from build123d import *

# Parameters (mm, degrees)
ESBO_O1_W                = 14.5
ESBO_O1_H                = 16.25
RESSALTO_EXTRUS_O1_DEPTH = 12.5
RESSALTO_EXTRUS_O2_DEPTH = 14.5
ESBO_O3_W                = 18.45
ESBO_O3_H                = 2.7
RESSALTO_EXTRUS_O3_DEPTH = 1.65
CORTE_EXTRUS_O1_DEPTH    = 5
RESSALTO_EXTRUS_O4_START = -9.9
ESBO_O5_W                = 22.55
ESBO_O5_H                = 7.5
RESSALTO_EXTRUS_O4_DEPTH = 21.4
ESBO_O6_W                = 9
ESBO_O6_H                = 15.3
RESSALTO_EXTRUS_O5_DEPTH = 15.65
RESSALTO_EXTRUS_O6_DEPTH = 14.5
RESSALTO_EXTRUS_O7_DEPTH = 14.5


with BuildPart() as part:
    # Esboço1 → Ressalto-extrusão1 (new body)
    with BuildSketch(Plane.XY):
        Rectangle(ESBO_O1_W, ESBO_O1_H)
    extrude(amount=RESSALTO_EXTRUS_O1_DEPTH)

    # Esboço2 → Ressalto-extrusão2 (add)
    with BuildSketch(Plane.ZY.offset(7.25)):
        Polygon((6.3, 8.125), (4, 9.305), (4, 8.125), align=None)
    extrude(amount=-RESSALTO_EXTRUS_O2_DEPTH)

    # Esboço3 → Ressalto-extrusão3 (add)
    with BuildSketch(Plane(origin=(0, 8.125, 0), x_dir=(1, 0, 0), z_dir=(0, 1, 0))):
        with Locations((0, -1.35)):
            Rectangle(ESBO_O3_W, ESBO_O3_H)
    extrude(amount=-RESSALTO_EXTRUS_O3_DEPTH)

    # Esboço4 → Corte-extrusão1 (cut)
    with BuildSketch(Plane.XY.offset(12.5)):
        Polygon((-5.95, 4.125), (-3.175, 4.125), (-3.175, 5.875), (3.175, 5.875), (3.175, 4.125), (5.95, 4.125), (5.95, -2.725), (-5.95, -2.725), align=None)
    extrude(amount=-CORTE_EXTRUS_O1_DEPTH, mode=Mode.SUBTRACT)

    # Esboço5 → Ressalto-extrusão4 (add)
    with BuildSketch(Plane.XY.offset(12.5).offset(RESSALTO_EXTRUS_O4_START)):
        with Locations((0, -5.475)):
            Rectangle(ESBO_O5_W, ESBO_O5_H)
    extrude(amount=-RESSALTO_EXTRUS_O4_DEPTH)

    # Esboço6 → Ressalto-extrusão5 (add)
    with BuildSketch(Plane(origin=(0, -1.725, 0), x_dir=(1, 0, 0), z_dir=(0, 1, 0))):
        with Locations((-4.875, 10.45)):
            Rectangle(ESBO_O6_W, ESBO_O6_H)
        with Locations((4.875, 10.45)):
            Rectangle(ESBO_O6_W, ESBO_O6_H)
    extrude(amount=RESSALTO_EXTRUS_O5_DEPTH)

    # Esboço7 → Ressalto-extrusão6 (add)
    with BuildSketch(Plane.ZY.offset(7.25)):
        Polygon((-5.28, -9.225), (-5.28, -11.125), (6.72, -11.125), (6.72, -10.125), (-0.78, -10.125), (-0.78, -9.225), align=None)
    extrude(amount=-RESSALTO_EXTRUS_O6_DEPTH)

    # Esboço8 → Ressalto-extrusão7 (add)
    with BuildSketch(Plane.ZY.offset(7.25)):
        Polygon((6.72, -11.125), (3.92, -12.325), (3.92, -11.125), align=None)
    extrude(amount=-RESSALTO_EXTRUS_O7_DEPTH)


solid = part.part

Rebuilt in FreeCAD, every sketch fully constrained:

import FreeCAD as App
import Part
import Sketcher

V = App.Vector

doc = App.newDocument("Part")
params = doc.addObject("Spreadsheet::Sheet", "Params")
for row, (alias, value) in enumerate([
    ("sketch1_width", "14.5 mm"),
    ("sketch1_height", "16.25 mm"),
    ("pad1_length", "12.5 mm"),
    ("sketch2_height", "2.3 mm"),
    ("sketch2_width", "1.18 mm"),
    ("pad2_length", "14.5 mm"),
    ("sketch3_height", "2.7 mm"),
    ("sketch3_width", "18.45 mm"),
    ("pad3_length", "1.65 mm"),
    ("sketch4_width", "11.9 mm"),
    ("sketch4_width2", "6.35 mm"),
    ("sketch4_height", "6.85 mm"),
    ("sketch4_height2", "1.75 mm"),
    ("pocket1_length", "5 mm"),
    ("sketch5_height", "7.5 mm"),
    ("sketch5_width", "22.55 mm"),
    ("pad4_length", "21.4 mm"),
    ("sketch6_width", "9 mm"),
    ("sketch6_height", "15.3 mm"),
    ("pad5_length", "15.65 mm"),
    ("sketch7_width", "1 mm"),
    ("sketch7_height", "12 mm"),
    ("sketch7_width2", "1.9 mm"),
    ("sketch7_height2", "7.5 mm"),
    ("pad6_length", "14.5 mm"),
    ("sketch8_width", "1.2 mm"),
    ("sketch8_height", "2.8 mm"),
    ("pad7_length", "14.5 mm"),
], start=1):
    params.set(f"A{row}", alias)
    params.set(f"B{row}", "=" + value)
    params.setAlias(f"B{row}", alias)

body = doc.addObject("PartDesign::Body", "Body")

# Sketch on XY plane
sketch1 = body.newObject("Sketcher::SketchObject", "Sketch")
sketch1.AttachmentSupport = (doc.getObject("XY_Plane"), [""])
sketch1.MapMode = "FlatFace"
sketch1.addGeometry(Part.LineSegment(V(-7.25, 8.125, 0), V(-7.25, -8.125, 0)), False)
sketch1.addGeometry(Part.LineSegment(V(-7.25, -8.125, 0), V(7.25, -8.125, 0)), False)
sketch1.addGeometry(Part.LineSegment(V(7.25, -8.125, 0), V(7.25, 8.125, 0)), False)
sketch1.addGeometry(Part.LineSegment(V(7.25, 8.125, 0), V(-7.25, 8.125, 0)), False)
sketch1.addConstraint(Sketcher.Constraint("Coincident", 0, 2, 1, 1))
sketch1.addConstraint(Sketcher.Constraint("Coincident", 1, 2, 2, 1))
sketch1.addConstraint(Sketcher.Constraint("Coincident", 2, 2, 3, 1))
sketch1.addConstraint(Sketcher.Constraint("Coincident", 3, 2, 0, 1))
sketch1.addConstraint(Sketcher.Constraint("Vertical", 0))
sketch1.addConstraint(Sketcher.Constraint("Horizontal", 1))
sketch1.addConstraint(Sketcher.Constraint("Vertical", 2))
sketch1.addConstraint(Sketcher.Constraint("Horizontal", 3))
sketch1.addConstraint(Sketcher.Constraint("Symmetric", 0, 2, 2, 2, -1, 1))
sketch1.addConstraint(Sketcher.Constraint("DistanceX", 1, 1, 1, 2, 14.5))
sketch1.addConstraint(Sketcher.Constraint("DistanceY", 0, 2, 0, 1, 16.25))
sketch1.setExpression("Constraints[9]", "Params.sketch1_width")
sketch1.setExpression("Constraints[10]", "Params.sketch1_height")
pad1 = body.newObject("PartDesign::Pad", "Pad")
pad1.Profile = sketch1
pad1.setExpression("Length", "Params.pad1_length")

# Sketch on YZ plane
sketch2 = body.newObject("Sketcher::SketchObject", "Sketch001")
sketch2.AttachmentSupport = (doc.getObject("YZ_Plane"), [""])
sketch2.MapMode = "FlatFace"
sketch2.AttachmentOffset = App.Placement(V(0, 0, -7.25), App.Rotation())
sketch2.addGeometry(Part.LineSegment(V(8.125, 6.3, 0), V(9.305, 4, 0)), False)
sketch2.addGeometry(Part.LineSegment(V(9.305, 4, 0), V(8.125, 4, 0)), False)
sketch2.addGeometry(Part.LineSegment(V(8.125, 4, 0), V(8.125, 6.3, 0)), False)
sketch2.addConstraint(Sketcher.Constraint("Coincident", 0, 2, 1, 1))
sketch2.addConstraint(Sketcher.Constraint("Coincident", 1, 2, 2, 1))
sketch2.addConstraint(Sketcher.Constraint("Coincident", 2, 2, 0, 1))
sketch2.addConstraint(Sketcher.Constraint("Horizontal", 1))
sketch2.addConstraint(Sketcher.Constraint("Vertical", 2))
sketch2.addConstraint(Sketcher.Constraint("DistanceY", 2, 1, 2, 2, 2.3))
sketch2.addConstraint(Sketcher.Constraint("DistanceY", -1, 1, 0, 2, 4.0))
sketch2.addConstraint(Sketcher.Constraint("DistanceX", 1, 2, 1, 1, 1.18))
sketch2.addConstraint(Sketcher.Constraint("DistanceX", -1, 1, 0, 2, 9.305))
sketch2.setExpression("Constraints[5]", "Params.sketch2_height")
sketch2.setExpression("Constraints[7]", "Params.sketch2_width")
pad2 = body.newObject("PartDesign::Pad", "Pad001")
pad2.Profile = sketch2
pad2.setExpression("Length", "Params.pad2_length")

# Sketch on XZ plane
sketch3 = body.newObject("Sketcher::SketchObject", "Sketch002")
sketch3.AttachmentSupport = (doc.getObject("XZ_Plane"), [""])
sketch3.MapMode = "FlatFace"
sketch3.AttachmentOffset = App.Placement(V(0, 0, -8.125), App.Rotation())
sketch3.addGeometry(Part.LineSegment(V(-9.225, 0, 0), V(-9.225, 2.7, 0)), False)
sketch3.addGeometry(Part.LineSegment(V(-9.225, 2.7, 0), V(9.225, 2.7, 0)), False)
sketch3.addGeometry(Part.LineSegment(V(9.225, 2.7, 0), V(9.225, 0, 0)), False)
sketch3.addGeometry(Part.LineSegment(V(9.225, 0, 0), V(-9.225, 0, 0)), False)
sketch3.addConstraint(Sketcher.Constraint("Coincident", 0, 2, 1, 1))
sketch3.addConstraint(Sketcher.Constraint("Coincident", 1, 2, 2, 1))
sketch3.addConstraint(Sketcher.Constraint("Coincident", 2, 2, 3, 1))
sketch3.addConstraint(Sketcher.Constraint("Coincident", 3, 2, 0, 1))
sketch3.addConstraint(Sketcher.Constraint("Vertical", 0))
sketch3.addConstraint(Sketcher.Constraint("Horizontal", 1))
sketch3.addConstraint(Sketcher.Constraint("Vertical", 2))
sketch3.addConstraint(Sketcher.Constraint("Horizontal", 3))
sketch3.addConstraint(Sketcher.Constraint("Symmetric", 2, 2, 3, 2, -1, 1))
sketch3.addConstraint(Sketcher.Constraint("DistanceY", 0, 1, 0, 2, 2.7))
sketch3.addConstraint(Sketcher.Constraint("DistanceX", 1, 1, 1, 2, 18.45))
sketch3.setExpression("Constraints[9]", "Params.sketch3_height")
sketch3.setExpression("Constraints[10]", "Params.sketch3_width")
pad3 = body.newObject("PartDesign::Pad", "Pad002")
pad3.Profile = sketch3
pad3.setExpression("Length", "Params.pad3_length")

# Sketch on XY plane
sketch4 = body.newObject("Sketcher::SketchObject", "Sketch003")
sketch4.AttachmentSupport = (doc.getObject("XY_Plane"), [""])
sketch4.MapMode = "FlatFace"
sketch4.AttachmentOffset = App.Placement(V(0, 0, 12.5), App.Rotation())
sketch4.addGeometry(Part.LineSegment(V(-3.175, 4.125, 0), V(-5.95, 4.125, 0)), False)
sketch4.addGeometry(Part.LineSegment(V(-5.95, 4.125, 0), V(-5.95, -2.725, 0)), False)
sketch4.addGeometry(Part.LineSegment(V(-5.95, -2.725, 0), V(5.95, -2.725, 0)), False)
sketch4.addGeometry(Part.LineSegment(V(5.95, -2.725, 0), V(5.95, 4.125, 0)), False)
sketch4.addGeometry(Part.LineSegment(V(5.95, 4.125, 0), V(3.175, 4.125, 0)), False)
sketch4.addGeometry(Part.LineSegment(V(3.175, 4.125, 0), V(3.175, 5.875, 0)), False)
sketch4.addGeometry(Part.LineSegment(V(3.175, 5.875, 0), V(-3.175, 5.875, 0)), False)
sketch4.addGeometry(Part.LineSegment(V(-3.175, 5.875, 0), V(-3.175, 4.125, 0)), False)
sketch4.addConstraint(Sketcher.Constraint("Coincident", 0, 2, 1, 1))
sketch4.addConstraint(Sketcher.Constraint("Coincident", 1, 2, 2, 1))
sketch4.addConstraint(Sketcher.Constraint("Coincident", 2, 2, 3, 1))
sketch4.addConstraint(Sketcher.Constraint("Coincident", 3, 2, 4, 1))
sketch4.addConstraint(Sketcher.Constraint("Coincident", 4, 2, 5, 1))
sketch4.addConstraint(Sketcher.Constraint("Coincident", 5, 2, 6, 1))
sketch4.addConstraint(Sketcher.Constraint("Coincident", 6, 2, 7, 1))
sketch4.addConstraint(Sketcher.Constraint("Coincident", 7, 2, 0, 1))
sketch4.addConstraint(Sketcher.Constraint("Horizontal", 0))
sketch4.addConstraint(Sketcher.Constraint("Vertical", 1))
sketch4.addConstraint(Sketcher.Constraint("Horizontal", 2))
sketch4.addConstraint(Sketcher.Constraint("Vertical", 3))
sketch4.addConstraint(Sketcher.Constraint("Horizontal", 4))
sketch4.addConstraint(Sketcher.Constraint("Vertical", 5))
sketch4.addConstraint(Sketcher.Constraint("Horizontal", 6))
sketch4.addConstraint(Sketcher.Constraint("Vertical", 7))
sketch4.addConstraint(Sketcher.Constraint("Symmetric", 0, 2, 3, 2, -2))
sketch4.addConstraint(Sketcher.Constraint("Equal", 0, 4))
sketch4.addConstraint(Sketcher.Constraint("DistanceX", 2, 1, 2, 2, 11.9))
sketch4.addConstraint(Sketcher.Constraint("DistanceX", 6, 2, 6, 1, 6.35))
sketch4.addConstraint(Sketcher.Constraint("DistanceY", 1, 2, 1, 1, 6.85))
sketch4.addConstraint(Sketcher.Constraint("DistanceY", 5, 1, 5, 2, 1.75))
sketch4.addConstraint(Sketcher.Constraint("DistanceY", -1, 1, 0, 2, 4.125))
sketch4.setExpression("Constraints[18]", "Params.sketch4_width")
sketch4.setExpression("Constraints[19]", "Params.sketch4_width2")
sketch4.setExpression("Constraints[20]", "Params.sketch4_height")
sketch4.setExpression("Constraints[21]", "Params.sketch4_height2")
pocket1 = body.newObject("PartDesign::Pocket", "Pocket")
pocket1.Profile = sketch4
pocket1.setExpression("Length", "Params.pocket1_length")

# Sketch on XY plane
sketch5 = body.newObject("Sketcher::SketchObject", "Sketch004")
sketch5.AttachmentSupport = (doc.getObject("XY_Plane"), [""])
sketch5.MapMode = "FlatFace"
sketch5.AttachmentOffset = App.Placement(V(0, 0, 2.6), App.Rotation())
sketch5.addGeometry(Part.LineSegment(V(-11.275, -1.725, 0), V(-11.275, -9.225, 0)), False)
sketch5.addGeometry(Part.LineSegment(V(-11.275, -9.225, 0), V(11.275, -9.225, 0)), False)
sketch5.addGeometry(Part.LineSegment(V(11.275, -9.225, 0), V(11.275, -1.725, 0)), False)
sketch5.addGeometry(Part.LineSegment(V(11.275, -1.725, 0), V(-11.275, -1.725, 0)), False)
sketch5.addConstraint(Sketcher.Constraint("Coincident", 0, 2, 1, 1))
sketch5.addConstraint(Sketcher.Constraint("Coincident", 1, 2, 2, 1))
sketch5.addConstraint(Sketcher.Constraint("Coincident", 2, 2, 3, 1))
sketch5.addConstraint(Sketcher.Constraint("Coincident", 3, 2, 0, 1))
sketch5.addConstraint(Sketcher.Constraint("Vertical", 0))
sketch5.addConstraint(Sketcher.Constraint("Horizontal", 1))
sketch5.addConstraint(Sketcher.Constraint("Vertical", 2))
sketch5.addConstraint(Sketcher.Constraint("Horizontal", 3))
sketch5.addConstraint(Sketcher.Constraint("DistanceY", 0, 2, 0, 1, 7.5))
sketch5.addConstraint(Sketcher.Constraint("DistanceX", 1, 1, 1, 2, 22.55))
sketch5.addConstraint(Sketcher.Constraint("DistanceX", 0, 2, -1, 1, 11.275))
sketch5.addConstraint(Sketcher.Constraint("DistanceY", 0, 2, -1, 1, 9.225))
sketch5.setExpression("Constraints[8]", "Params.sketch5_height")
sketch5.setExpression("Constraints[9]", "Params.sketch5_width")
pad4 = body.newObject("PartDesign::Pad", "Pad003")
pad4.Profile = sketch5
pad4.setExpression("Length", "Params.pad4_length")
pad4.Reversed = True

# Sketch on XZ plane
sketch6 = body.newObject("Sketcher::SketchObject", "Sketch005")
sketch6.AttachmentSupport = (doc.getObject("XZ_Plane"), [""])
sketch6.MapMode = "FlatFace"
sketch6.AttachmentOffset = App.Placement(V(0, 0, 1.725), App.Rotation())
sketch6.addGeometry(Part.LineSegment(V(-9.375, -18.1, 0), V(-9.375, -2.8, 0)), False)
sketch6.addGeometry(Part.LineSegment(V(-9.375, -2.8, 0), V(-0.375, -2.8, 0)), False)
sketch6.addGeometry(Part.LineSegment(V(-0.375, -2.8, 0), V(-0.375, -18.1, 0)), False)
sketch6.addGeometry(Part.LineSegment(V(-0.375, -18.1, 0), V(-9.375, -18.1, 0)), False)
sketch6.addGeometry(Part.LineSegment(V(0.375, -18.1, 0), V(0.375, -2.8, 0)), False)
sketch6.addGeometry(Part.LineSegment(V(0.375, -2.8, 0), V(9.375, -2.8, 0)), False)
sketch6.addGeometry(Part.LineSegment(V(9.375, -2.8, 0), V(9.375, -18.1, 0)), False)
sketch6.addGeometry(Part.LineSegment(V(9.375, -18.1, 0), V(0.375, -18.1, 0)), False)
sketch6.addConstraint(Sketcher.Constraint("Coincident", 0, 2, 1, 1))
sketch6.addConstraint(Sketcher.Constraint("Coincident", 1, 2, 2, 1))
sketch6.addConstraint(Sketcher.Constraint("Coincident", 2, 2, 3, 1))
sketch6.addConstraint(Sketcher.Constraint("Coincident", 3, 2, 0, 1))
sketch6.addConstraint(Sketcher.Constraint("Coincident", 4, 2, 5, 1))
sketch6.addConstraint(Sketcher.Constraint("Coincident", 5, 2, 6, 1))
sketch6.addConstraint(Sketcher.Constraint("Coincident", 6, 2, 7, 1))
sketch6.addConstraint(Sketcher.Constraint("Coincident", 7, 2, 4, 1))
sketch6.addConstraint(Sketcher.Constraint("Vertical", 0))
sketch6.addConstraint(Sketcher.Constraint("Horizontal", 1))
sketch6.addConstraint(Sketcher.Constraint("Vertical", 2))
sketch6.addConstraint(Sketcher.Constraint("Horizontal", 3))
sketch6.addConstraint(Sketcher.Constraint("Vertical", 4))
sketch6.addConstraint(Sketcher.Constraint("Horizontal", 5))
sketch6.addConstraint(Sketcher.Constraint("Vertical", 6))
sketch6.addConstraint(Sketcher.Constraint("Horizontal", 7))
sketch6.addConstraint(Sketcher.Constraint("Symmetric", 1, 2, 4, 2, -2))
sketch6.addConstraint(Sketcher.Constraint("Symmetric", 3, 2, 6, 2, -2))
sketch6.addConstraint(Sketcher.Constraint("DistanceX", 1, 1, 1, 2, 9.0))
sketch6.addConstraint(Sketcher.Constraint("DistanceY", 0, 1, 0, 2, 15.3))
sketch6.addConstraint(Sketcher.Constraint("DistanceY", 0, 2, -1, 1, 2.8))
sketch6.addConstraint(Sketcher.Constraint("DistanceX", 1, 2, 4, 2, 0.75))
sketch6.setExpression("Constraints[18]", "Params.sketch6_width")
sketch6.setExpression("Constraints[19]", "Params.sketch6_height")
pad5 = body.newObject("PartDesign::Pad", "Pad004")
pad5.Profile = sketch6
pad5.setExpression("Length", "Params.pad5_length")
pad5.Reversed = True

# Sketch on YZ plane
sketch7 = body.newObject("Sketcher::SketchObject", "Sketch006")
sketch7.AttachmentSupport = (doc.getObject("YZ_Plane"), [""])
sketch7.MapMode = "FlatFace"
sketch7.AttachmentOffset = App.Placement(V(0, 0, -7.25), App.Rotation())
sketch7.addGeometry(Part.LineSegment(V(-9.225, -5.28, 0), V(-11.125, -5.28, 0)), False)
sketch7.addGeometry(Part.LineSegment(V(-11.125, -5.28, 0), V(-11.125, 6.72, 0)), False)
sketch7.addGeometry(Part.LineSegment(V(-11.125, 6.72, 0), V(-10.125, 6.72, 0)), False)
sketch7.addGeometry(Part.LineSegment(V(-10.125, 6.72, 0), V(-10.125, -0.78, 0)), False)
sketch7.addGeometry(Part.LineSegment(V(-10.125, -0.78, 0), V(-9.225, -0.78, 0)), False)
sketch7.addGeometry(Part.LineSegment(V(-9.225, -0.78, 0), V(-9.225, -5.28, 0)), False)
sketch7.addConstraint(Sketcher.Constraint("Coincident", 0, 2, 1, 1))
sketch7.addConstraint(Sketcher.Constraint("Coincident", 1, 2, 2, 1))
sketch7.addConstraint(Sketcher.Constraint("Coincident", 2, 2, 3, 1))
sketch7.addConstraint(Sketcher.Constraint("Coincident", 3, 2, 4, 1))
sketch7.addConstraint(Sketcher.Constraint("Coincident", 4, 2, 5, 1))
sketch7.addConstraint(Sketcher.Constraint("Coincident", 5, 2, 0, 1))
sketch7.addConstraint(Sketcher.Constraint("Horizontal", 0))
sketch7.addConstraint(Sketcher.Constraint("Vertical", 1))
sketch7.addConstraint(Sketcher.Constraint("Horizontal", 2))
sketch7.addConstraint(Sketcher.Constraint("Vertical", 3))
sketch7.addConstraint(Sketcher.Constraint("Horizontal", 4))
sketch7.addConstraint(Sketcher.Constraint("Vertical", 5))
sketch7.addConstraint(Sketcher.Constraint("DistanceX", 2, 1, 2, 2, 1.0))
sketch7.addConstraint(Sketcher.Constraint("DistanceY", 1, 1, 1, 2, 12.0))
sketch7.addConstraint(Sketcher.Constraint("DistanceX", 0, 2, 0, 1, 1.9))
sketch7.addConstraint(Sketcher.Constraint("DistanceY", 3, 2, 3, 1, 7.5))
sketch7.addConstraint(Sketcher.Constraint("DistanceY", 0, 2, -1, 1, 5.28))
sketch7.addConstraint(Sketcher.Constraint("DistanceX", 0, 2, -1, 1, 11.125))
sketch7.setExpression("Constraints[12]", "Params.sketch7_width")
sketch7.setExpression("Constraints[13]", "Params.sketch7_height")
sketch7.setExpression("Constraints[14]", "Params.sketch7_width2")
sketch7.setExpression("Constraints[15]", "Params.sketch7_height2")
pad6 = body.newObject("PartDesign::Pad", "Pad005")
pad6.Profile = sketch7
pad6.setExpression("Length", "Params.pad6_length")

# Sketch on YZ plane
sketch8 = body.newObject("Sketcher::SketchObject", "Sketch007")
sketch8.AttachmentSupport = (doc.getObject("YZ_Plane"), [""])
sketch8.MapMode = "FlatFace"
sketch8.AttachmentOffset = App.Placement(V(0, 0, -7.25), App.Rotation())
sketch8.addGeometry(Part.LineSegment(V(-12.325, 3.92, 0), V(-11.125, 6.72, 0)), False)
sketch8.addGeometry(Part.LineSegment(V(-11.125, 6.72, 0), V(-11.125, 3.92, 0)), False)
sketch8.addGeometry(Part.LineSegment(V(-11.125, 3.92, 0), V(-12.325, 3.92, 0)), False)
sketch8.addConstraint(Sketcher.Constraint("Coincident", 0, 2, 1, 1))
sketch8.addConstraint(Sketcher.Constraint("Coincident", 1, 2, 2, 1))
sketch8.addConstraint(Sketcher.Constraint("Coincident", 2, 2, 0, 1))
sketch8.addConstraint(Sketcher.Constraint("Vertical", 1))
sketch8.addConstraint(Sketcher.Constraint("Horizontal", 2))
sketch8.addConstraint(Sketcher.Constraint("DistanceX", 2, 2, 2, 1, 1.2))
sketch8.addConstraint(Sketcher.Constraint("DistanceY", 1, 2, 1, 1, 2.8))
sketch8.addConstraint(Sketcher.Constraint("DistanceY", -1, 1, 0, 2, 6.72))
sketch8.addConstraint(Sketcher.Constraint("DistanceX", 0, 2, -1, 1, 11.125))
sketch8.setExpression("Constraints[5]", "Params.sketch8_width")
sketch8.setExpression("Constraints[6]", "Params.sketch8_height")
pad7 = body.newObject("PartDesign::Pad", "Pad006")
pad7.Profile = sketch8
pad7.setExpression("Length", "Params.pad7_length")

doc.recompute()
